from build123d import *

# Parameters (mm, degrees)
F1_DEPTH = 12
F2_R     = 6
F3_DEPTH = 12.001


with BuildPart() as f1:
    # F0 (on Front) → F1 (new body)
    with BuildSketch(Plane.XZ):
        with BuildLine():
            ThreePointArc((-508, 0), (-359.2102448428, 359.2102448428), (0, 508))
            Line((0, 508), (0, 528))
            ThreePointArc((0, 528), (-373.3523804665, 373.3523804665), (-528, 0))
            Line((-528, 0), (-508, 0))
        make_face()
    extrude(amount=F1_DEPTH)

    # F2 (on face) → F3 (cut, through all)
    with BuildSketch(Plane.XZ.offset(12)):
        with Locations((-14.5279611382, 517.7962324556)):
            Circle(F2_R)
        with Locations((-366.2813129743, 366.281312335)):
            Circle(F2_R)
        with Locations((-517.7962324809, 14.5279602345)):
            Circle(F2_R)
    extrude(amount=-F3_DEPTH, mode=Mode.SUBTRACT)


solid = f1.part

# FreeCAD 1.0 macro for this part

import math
import FreeCAD as App
import Part
import Sketcher
from FreeCAD import Vector
Q = App.Units.Quantity

doc = App.newDocument("Part")
body = doc.addObject("PartDesign::Body", "Body")

sketch1 = body.newObject("Sketcher::SketchObject", "Sketch")
sketch1.AttachmentSupport = (doc.getObject("XZ_Plane"), [""])
sketch1.MapMode = "FlatFace"
sketch1.addGeometry(Part.ArcOfCircle(Part.Circle(Vector(0, 0, 0), Vector(0, 0, 1), 508), math.radians(90), math.radians(180)), False)
sketch1.addGeometry(Part.LineSegment(Vector(0, 508, 0), Vector(0, 528, 0)), False)
sketch1.addGeometry(Part.ArcOfCircle(Part.Circle(Vector(0, 0, 0), Vector(0, 0, 1), 528), math.radians(90), math.radians(180)), False)
sketch1.addGeometry(Part.LineSegment(Vector(-528, 0, 0), Vector(-508, 0, 0)), False)
sketch1.addConstraint(Sketcher.Constraint("Coincident", 0, 1, 1, 1))
sketch1.addConstraint(Sketcher.Constraint("Coincident", 1, 2, 2, 1))
sketch1.addConstraint(Sketcher.Constraint("Coincident", 2, 2, 3, 1))
sketch1.addConstraint(Sketcher.Constraint("Coincident", 3, 2, 0, 2))
sketch1.addConstraint(Sketcher.Constraint("Vertical", 1))
sketch1.addConstraint(Sketcher.Constraint("Horizontal", 3))
sketch1.addConstraint(Sketcher.Constraint("Coincident", 0, 3, -1, 1))
sketch1.addConstraint(Sketcher.Constraint("Coincident", 2, 3, -1, 1))
sketch1.addConstraint(Sketcher.Constraint("PointOnObject", 1, 2, -2))
sketch1.addConstraint(Sketcher.Constraint("PointOnObject", 3, 2, -1))
sketch1.addConstraint(Sketcher.Constraint("Radius", 0, Q("508 mm")))
sketch1.addConstraint(Sketcher.Constraint("Radius", 2, Q("528 mm")))
pad1 = body.newObject("PartDesign::Pad", "Pad")
pad1.Profile = sketch1
pad1.Length = 12

sketch2 = body.newObject("Sketcher::SketchObject", "Sketch001")
sketch2.AttachmentSupport = (doc.getObject("XZ_Plane"), [""])
sketch2.MapMode = "FlatFace"
sketch2.AttachmentOffset = App.Placement(Vector(0, 0, 12), App.Rotation())
sketch2.addGeometry(Part.Circle(Vector(-15, 518, 0), Vector(0, 0, 1), 6), False)
sketch2.addGeometry(Part.Circle(Vector(-366, 366, 0), Vector(0, 0, 1), 6), False)
sketch2.addGeometry(Part.Circle(Vector(-518, 15, 0), Vector(0, 0, 1), 6), False)
sketch2.addConstraint(Sketcher.Constraint("Equal", 0, 1))
sketch2.addConstraint(Sketcher.Constraint("Equal", 1, 2))
sketch2.addConstraint(Sketcher.Constraint("Diameter", 0, Q("12 mm")))
sketch2.addConstraint(Sketcher.Constraint("DistanceX", 0, 3, -1, 1, Q("14.527961 mm")))
sketch2.addConstraint(Sketcher.Constraint("DistanceY", -1, 1, 2, 3, Q("14.52796 mm")))
sketch2.addConstraint(Sketcher.Constraint("DistanceX", 1, 3, 0, 3, Q("351.753352 mm")))
sketch2.addConstraint(Sketcher.Constraint("DistanceY", 1, 3, 0, 3, Q("151.51492 mm")))
sketch2.addConstraint(Sketcher.Constraint("DistanceX", 2, 3, 1, 3, Q("151.51492 mm")))
sketch2.addConstraint(Sketcher.Constraint("DistanceY", -1, 1, 0, 3, Q("517.796232 mm")))
pocket1 = body.newObject("PartDesign::Pocket", "Pocket")
pocket1.Profile = sketch2
pocket1.Type = "ThroughAll"

doc.recompute()
